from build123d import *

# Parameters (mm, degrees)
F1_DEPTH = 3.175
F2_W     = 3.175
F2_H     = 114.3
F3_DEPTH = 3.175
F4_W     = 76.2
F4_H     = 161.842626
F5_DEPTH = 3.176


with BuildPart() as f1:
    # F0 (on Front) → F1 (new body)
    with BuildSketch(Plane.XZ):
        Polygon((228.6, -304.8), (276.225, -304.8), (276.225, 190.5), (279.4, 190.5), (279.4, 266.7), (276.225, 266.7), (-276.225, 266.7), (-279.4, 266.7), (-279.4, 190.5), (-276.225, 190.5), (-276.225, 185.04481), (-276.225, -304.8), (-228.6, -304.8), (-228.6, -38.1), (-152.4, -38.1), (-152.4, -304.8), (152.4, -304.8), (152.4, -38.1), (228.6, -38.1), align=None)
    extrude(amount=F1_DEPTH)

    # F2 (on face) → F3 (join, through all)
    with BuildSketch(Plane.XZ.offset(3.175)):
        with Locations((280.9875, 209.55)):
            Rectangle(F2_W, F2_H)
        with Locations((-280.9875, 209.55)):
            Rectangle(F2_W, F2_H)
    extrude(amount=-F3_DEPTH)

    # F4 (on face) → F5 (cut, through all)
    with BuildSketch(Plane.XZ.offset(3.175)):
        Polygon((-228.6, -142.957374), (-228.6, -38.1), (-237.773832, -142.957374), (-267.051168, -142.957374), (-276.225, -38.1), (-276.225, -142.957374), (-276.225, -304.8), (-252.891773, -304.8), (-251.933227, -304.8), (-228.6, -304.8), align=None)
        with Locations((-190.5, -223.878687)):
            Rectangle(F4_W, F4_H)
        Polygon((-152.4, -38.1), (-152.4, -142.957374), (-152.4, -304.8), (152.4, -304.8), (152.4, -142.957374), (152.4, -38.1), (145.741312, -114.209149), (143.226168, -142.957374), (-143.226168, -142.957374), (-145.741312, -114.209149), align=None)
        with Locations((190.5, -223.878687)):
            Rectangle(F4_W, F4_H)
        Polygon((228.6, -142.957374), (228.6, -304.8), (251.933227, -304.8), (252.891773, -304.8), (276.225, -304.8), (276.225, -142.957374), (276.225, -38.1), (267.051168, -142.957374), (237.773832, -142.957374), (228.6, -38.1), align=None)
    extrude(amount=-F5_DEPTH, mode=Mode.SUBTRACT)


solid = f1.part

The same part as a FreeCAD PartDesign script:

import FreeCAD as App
import Part
import Sketcher
from FreeCAD import Vector
Q = App.Units.Quantity


def add_polygon(sketch, points):
    """Adds a closed chain of lines whose ends are joined by coincident constraints."""
    first, n = sketch.GeometryCount, len(points)
    for a, b in zip(points, points[1:] + points[:1]):
        sketch.addGeometry(Part.LineSegment(App.Vector(*a, 0), App.Vector(*b, 0)), False)
    for i in range(n):
        sketch.addConstraint(Sketcher.Constraint("Coincident", first + i, 2, first + (i + 1) % n, 1))

doc = App.newDocument("Part")
body = doc.addObject("PartDesign::Body", "Body")

# Sketch on XZ plane
sketch1 = body.newObject("Sketcher::SketchObject", "Sketch")
sketch1.AttachmentSupport = (doc.getObject("XZ_Plane"), [""])
sketch1.MapMode = "FlatFace"
add_polygon(sketch1, [(228.6, -304.8), (276.2, -304.8), (276.2, 190.5), (279.4, 190.5), (279.4, 266.7), (-279.4, 266.7), (-279.4, 190.5), (-276.2, 190.5), (-276.2, -304.8), (-228.6, -304.8), (-228.6, -38.1), (-152.4, -38.1), (-152.4, -304.8), (152.4, -304.8), (152.4, -38.1), (228.6, -38.1)])  # lines 0-15
sketch1.addConstraint([
    Sketcher.Constraint("Horizontal", 0),
    Sketcher.Constraint("Vertical", 1),
    Sketcher.Constraint("Horizontal", 2),
    Sketcher.Constraint("Vertical", 3),
    Sketcher.Constraint("Horizontal", 4),
    Sketcher.Constraint("Vertical", 5),
    Sketcher.Constraint("Horizontal", 6),
    Sketcher.Constraint("Vertical", 7),
    Sketcher.Constraint("Horizontal", 8),
    Sketcher.Constraint("Vertical", 9),
    Sketcher.Constraint("Horizontal", 10),
    Sketcher.Constraint("Vertical", 11),
    Sketcher.Constraint("Horizontal", 12),
    Sketcher.Constraint("Vertical", 13),
    Sketcher.Constraint("Horizontal", 14),
    Sketcher.Constraint("Vertical", 15),
    Sketcher.Constraint("Symmetric", 2, 2, 5, 2, -2),
    Sketcher.Constraint("Symmetric", 0, 2, 7, 2, -2),
    Sketcher.Constraint("Symmetric", 10, 2, 13, 2, -2),
    Sketcher.Constraint("Horizontal", 8, 2, 11, 2),
    Sketcher.Constraint("Equal", 0, 8),
    Sketcher.Constraint("Equal", 14, 3),
    Sketcher.Constraint("DistanceX", 4, 2, 4, 1, Q("22 in")),
    Sketcher.Constraint("DistanceX", 10, 1, 10, 2, Q("3 in")),
    Sketcher.Constraint("DistanceX", 12, 1, 12, 2, Q("12 in")),
    Sketcher.Constraint("DistanceY", 1, 1, 1, 2, Q("19.5 in")),
    Sketcher.Constraint("DistanceY", 9, 1, 9, 2, Q("10.5 in")),
    Sketcher.Constraint("DistanceY", 0, 2, -1, 1, Q("12 in")),
    Sketcher.Constraint("DistanceX", 0, 1, 0, 2, Q("1.875 in")),
])
pad1 = body.newObject("PartDesign::Pad", "Pad")
pad1.Profile = sketch1
pad1.Length = Q("0.125 in")

# Sketch on XZ plane
sketch2 = body.newObject("Sketcher::SketchObject", "Sketch001")
sketch2.AttachmentSupport = (doc.getObject("XZ_Plane"), [""])
sketch2.MapMode = "FlatFace"
sketch2.AttachmentOffset = App.Placement(Vector(0, 0, 0.125 * 25.4), App.Rotation())
add_polygon(sketch2, [(279.4, 266.7), (279.4, 152.4), (282.6, 152.4), (282.6, 266.7)])  # lines 0-3
add_polygon(sketch2, [(-282.6, 266.7), (-282.6, 152.4), (-279.4, 152.4), (-279.4, 266.7)])  # lines 4-7
sketch2.addConstraint([
    Sketcher.Constraint("Vertical", 0),
    Sketcher.Constraint("Horizontal", 1),
    Sketcher.Constraint("Vertical", 2),
    Sketcher.Constraint("Horizontal", 3),
    Sketcher.Constraint("Vertical", 4),
    Sketcher.Constraint("Horizontal", 5),
    Sketcher.Constraint("Vertical", 6),
    Sketcher.Constraint("Horizontal", 7),
    Sketcher.Constraint("Symmetric", 1, 2, 4, 2, -2),
    Sketcher.Constraint("Symmetric", 3, 2, 6, 2, -2),
    Sketcher.Constraint("DistanceY", 0, 2, 0, 1, Q("4.5 in")),
    Sketcher.Constraint("DistanceX", -1, 1, 0, 2, Q("11 in")),
    Sketcher.Constraint("DistanceY", -1, 1, 0, 2, Q("6 in")),
    Sketcher.Constraint("DistanceX", 1, 1, 1, 2, Q("0.125 in")),
])
pad2 = body.newObject("PartDesign::Pad", "Pad001")
pad2.Profile = sketch2
pad2.Type = "UpToLast"
pad2.Reversed = True

# Sketch on XZ plane
sketch3 = body.newObject("Sketcher::SketchObject", "Sketch002")
sketch3.AttachmentSupport = (doc.getObject("XZ_Plane"), [""])
sketch3.MapMode = "FlatFace"
sketch3.AttachmentOffset = App.Placement(Vector(0, 0, 0.125 * 25.4), App.Rotation())
add_polygon(sketch3, [(-229, -38), (-238, -143), (-267, -143), (-276, -38), (-276, -305), (276, -305), (276, -38), (267, -143), (238, -143), (229, -38), (229, -143), (152, -143), (152, -38), (146, -114), (143, -143), (-143, -143), (-146, -114), (-152, -38), (-152, -143), (-229, -143)])  # lines 0-19
sketch3.addConstraint([
    Sketcher.Constraint("Horizontal", 1),
    Sketcher.Constraint("Vertical", 3),
    Sketcher.Constraint("Horizontal", 4),
    Sketcher.Constraint("Vertical", 5),
    Sketcher.Constraint("Horizontal", 7),
    Sketcher.Constraint("Vertical", 9),
    Sketcher.Constraint("Horizontal", 10),
    Sketcher.Constraint("Vertical", 11),
    Sketcher.Constraint("Horizontal", 14),
    Sketcher.Constraint("Vertical", 17),
    Sketcher.Constraint("Horizontal", 18),
    Sketcher.Constraint("Vertical", 19),
    Sketcher.Constraint("Symmetric", 2, 2, 5, 2, -2),
    Sketcher.Constraint("Symmetric", 1, 2, 6, 2, -2),
    Sketcher.Constraint("Symmetric", 12, 2, 15, 2, -2),
    Sketcher.Constraint("Symmetric", 11, 2, 16, 2, -2),
    Sketcher.Constraint("Symmetric", 9, 2, 18, 2, -2),
    Sketcher.Constraint("Parallel", 0, 6),
    Sketcher.Constraint("Parallel", 2, 8),
    Sketcher.Constraint("Parallel", 6, 12),
    Sketcher.Constraint("Parallel", 12, 13),
    Sketcher.Constraint("Parallel", 8, 15),
    Sketcher.Constraint("Horizontal", 5, 2, 8, 2),
    Sketcher.Constraint("Horizontal", 7, 2, 9, 2),
    Sketcher.Constraint("Horizontal", 8, 2, 11, 2),
    Sketcher.Constraint("Horizontal", 10, 2, 13, 2),
    Sketcher.Constraint("Horizontal", 16, 2, 19, 2),
    Sketcher.Constraint("DistanceX", 10, 2, 10, 1, Q("3 in")),
    Sketcher.Constraint("DistanceY", 3, 2, 3, 1, Q("10.5 in")),
    Sketcher.Constraint("DistanceY", 3, 2, -1, 1, Q("12 in")),
    Sketcher.Constraint("DistanceX", -1, 1, 8, 2, Q("9 in")),
    Sketcher.Constraint("Angle", 0, Q("-95 deg")),
    Sketcher.Constraint("DistanceX", 4, 1, 4, 2, Q("21.75 in")),
    Sketcher.Constraint("Distance", 13, Q("28.858039 mm")),
    Sketcher.Constraint("DistanceX", 1, 2, 1, 1, Q("29.277336 mm")),
])
pocket1 = body.newObject("PartDesign::Pocket", "Pocket")
pocket1.Profile = sketch3
pocket1.Type = "ThroughAll"

doc.recompute()
